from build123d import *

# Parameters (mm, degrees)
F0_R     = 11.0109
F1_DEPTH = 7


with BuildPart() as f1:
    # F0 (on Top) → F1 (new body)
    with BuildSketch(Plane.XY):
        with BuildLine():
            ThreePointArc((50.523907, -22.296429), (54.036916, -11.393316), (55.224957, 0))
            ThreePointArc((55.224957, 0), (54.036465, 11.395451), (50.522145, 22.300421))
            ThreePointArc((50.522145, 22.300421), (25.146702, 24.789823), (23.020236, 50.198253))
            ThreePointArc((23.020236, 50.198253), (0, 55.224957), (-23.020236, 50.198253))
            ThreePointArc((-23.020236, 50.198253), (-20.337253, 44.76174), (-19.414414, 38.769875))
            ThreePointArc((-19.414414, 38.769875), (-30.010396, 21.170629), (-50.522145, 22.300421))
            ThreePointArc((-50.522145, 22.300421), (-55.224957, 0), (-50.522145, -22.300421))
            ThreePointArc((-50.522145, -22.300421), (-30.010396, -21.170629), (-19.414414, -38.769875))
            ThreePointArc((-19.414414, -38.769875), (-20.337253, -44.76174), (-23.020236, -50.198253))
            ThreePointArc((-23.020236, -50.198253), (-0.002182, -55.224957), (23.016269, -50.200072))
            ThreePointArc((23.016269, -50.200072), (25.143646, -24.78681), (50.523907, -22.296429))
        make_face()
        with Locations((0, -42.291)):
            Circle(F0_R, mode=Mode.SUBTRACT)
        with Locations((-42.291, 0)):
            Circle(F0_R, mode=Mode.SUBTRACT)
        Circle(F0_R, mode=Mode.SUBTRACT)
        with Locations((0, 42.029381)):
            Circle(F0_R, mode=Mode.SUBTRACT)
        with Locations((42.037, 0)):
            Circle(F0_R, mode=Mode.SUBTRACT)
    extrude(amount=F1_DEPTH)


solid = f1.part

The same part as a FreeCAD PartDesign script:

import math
import FreeCAD as App
import Part
import Sketcher
Q = App.Units.Quantity

doc = App.newDocument("Part")
body = doc.addObject("PartDesign::Body", "Body")

sketch1 = body.newObject("Sketcher::SketchObject", "Sketch")
sketch1.AttachmentSupport = (doc.getObject("XY_Plane"), [""])
sketch1.MapMode = "FlatFace"
sketch1.addGeometry(Part.ArcOfCircle(Part.Circle(App.Vector(0, 0, 0), App.Vector(0, 0, 1), 55), math.radians(-24), math.radians(0)), False)
sketch1.addGeometry(Part.ArcOfCircle(Part.Circle(App.Vector(0, 0, 0), App.Vector(0, 0, 1), 55), math.radians(0), math.radians(24)), False)
sketch1.addGeometry(Part.ArcOfCircle(Part.Circle(App.Vector(39, 39, 0), App.Vector(0, 0, 1), 20), math.radians(145), math.radians(304)), False)
sketch1.addGeometry(Part.ArcOfCircle(Part.Circle(App.Vector(0, 0, 0), App.Vector(0, 0, 1), 55), math.radians(65), math.radians(115)), False)
sketch1.addGeometry(Part.ArcOfCircle(Part.Circle(App.Vector(-39, 39, 0), App.Vector(0, 0, 1), 20), math.radians(0), math.radians(35)), False)
sketch1.addGeometry(Part.ArcOfCircle(Part.Circle(App.Vector(-39, 39, 0), App.Vector(0, 0, 1), 20), math.radians(-124), math.radians(0)), False)
sketch1.addGeometry(Part.ArcOfCircle(Part.Circle(App.Vector(0, 0, 0), App.Vector(0, 0, 1), 55), math.radians(156), math.radians(204)), False)
sketch1.addGeometry(Part.ArcOfCircle(Part.Circle(App.Vector(-39, -39, 0), App.Vector(0, 0, 1), 20), math.radians(0), math.radians(124)), False)
sketch1.addGeometry(Part.ArcOfCircle(Part.Circle(App.Vector(-39, -39, 0), App.Vector(0, 0, 1), 20), math.radians(-35), math.radians(0)), False)
sketch1.addGeometry(Part.ArcOfCircle(Part.Circle(App.Vector(0, 0, 0), App.Vector(0, 0, 1), 55), math.radians(-115), math.radians(-65)), False)
sketch1.addGeometry(Part.ArcOfCircle(Part.Circle(App.Vector(39, -39, 0), App.Vector(0, 0, 1), 20), math.radians(56), math.radians(215)), False)
sketch1.addGeometry(Part.Circle(App.Vector(0, -42, 0), App.Vector(0, 0, 1), 11), False)
sketch1.addGeometry(Part.Circle(App.Vector(-42, 0, 0), App.Vector(0, 0, 1), 11), False)
sketch1.addGeometry(Part.Circle(App.Vector(0, 0, 0), App.Vector(0, 0, 1), 11), False)
sketch1.addGeometry(Part.Circle(App.Vector(42, 0, 0), App.Vector(0, 0, 1), 11), False)
sketch1.addGeometry(Part.Circle(App.Vector(0, 42, 0), App.Vector(0, 0, 1), 11), False)
sketch1.addConstraint(Sketcher.Constraint("Tangent", 0, 2, 1, 1))
sketch1.addConstraint(Sketcher.Constraint("Coincident", 1, 2, 2, 2))
sketch1.addConstraint(Sketcher.Constraint("Coincident", 2, 1, 3, 1))
sketch1.addConstraint(Sketcher.Constraint("Coincident", 3, 2, 4, 2))
sketch1.addConstraint(Sketcher.Constraint("Tangent", 4, 1, 5, 2))
sketch1.addConstraint(Sketcher.Constraint("Coincident", 5, 1, 6, 1))
sketch1.addConstraint(Sketcher.Constraint("Coincident", 6, 2, 7, 2))
sketch1.addConstraint(Sketcher.Constraint("Tangent", 7, 1, 8, 2))
sketch1.addConstraint(Sketcher.Constraint("Coincident", 8, 1, 9, 1))
sketch1.addConstraint(Sketcher.Constraint("Coincident", 9, 2, 10, 2))
sketch1.addConstraint(Sketcher.Constraint("Coincident", 10, 1, 0, 1))
sketch1.addConstraint(Sketcher.Constraint("Coincident", 3, 3, -1, 1))
sketch1.addConstraint(Sketcher.Constraint("Coincident", 6, 3, -1, 1))
sketch1.addConstraint(Sketcher.Constraint("Coincident", 9, 3, -1, 1))
sketch1.addConstraint(Sketcher.Constraint("Coincident", 13, 3, -1, 1))
sketch1.addConstraint(Sketcher.Constraint("Equal", 2, 5))
sketch1.addConstraint(Sketcher.Constraint("Equal", 5, 7))
sketch1.addConstraint(Sketcher.Constraint("Equal", 4, 8))
sketch1.addConstraint(Sketcher.Constraint("Equal", 3, 9))
sketch1.addConstraint(Sketcher.Constraint("Equal", 11, 12))
sketch1.addConstraint(Sketcher.Constraint("Equal", 12, 13))
sketch1.addConstraint(Sketcher.Constraint("Equal", 13, 14))
sketch1.addConstraint(Sketcher.Constraint("Equal", 14, 15))
sketch1.addConstraint(Sketcher.Constraint("Symmetric", 0, 3, 1, 3, -1, 1))
sketch1.addConstraint(Sketcher.Constraint("Symmetric", 2, 3, 7, 3, -1, 1))
sketch1.addConstraint(Sketcher.Constraint("Symmetric", 4, 3, 10, 3, -1, 1))
sketch1.addConstraint(Sketcher.Constraint("Symmetric", 2, 3, 4, 3, -2))
sketch1.addConstraint(Sketcher.Constraint("Symmetric", 1, 2, 5, 1, -2))
sketch1.addConstraint(Sketcher.Constraint("PointOnObject", 11, 3, -2))
sketch1.addConstraint(Sketcher.Constraint("PointOnObject", 12, 3, -1))
sketch1.addConstraint(Sketcher.Constraint("PointOnObject", 14, 3, -1))
sketch1.addConstraint(Sketcher.Constraint("PointOnObject", 15, 3, -2))
sketch1.addConstraint(Sketcher.Constraint("PointOnObject", 0, 2, -1))
sketch1.addConstraint(Sketcher.Constraint("Horizontal", 5, 3, 4, 1))
sketch1.addConstraint(Sketcher.Constraint("Horizontal", 10, 3, 7, 1))
sketch1.addConstraint(Sketcher.Constraint("Diameter", 11, Q("0.867 in")))
sketch1.addConstraint(Sketcher.Constraint("Radius", 2, Q("0.784 in")))
sketch1.addConstraint(Sketcher.Constraint("DistanceY", 11, 3, -1, 1, Q("1.665 in")))
sketch1.addConstraint(Sketcher.Constraint("DistanceX", 12, 3, -1, 1, Q("1.665 in")))
sketch1.addConstraint(Sketcher.Constraint("DistanceX", -1, 1, 14, 3, Q("1.655 in")))
sketch1.addConstraint(Sketcher.Constraint("Radius", 0, Q("55.224941 mm")))
sketch1.addConstraint(Sketcher.Constraint("Radius", 6, Q("55.224961 mm")))
sketch1.addConstraint(Sketcher.Constraint("DistanceY", -1, 1, 15, 3, Q("1.6547 in")))
sketch1.addConstraint(Sketcher.Constraint("Radius", 3, Q("55.224956 mm")))
sketch1.addConstraint(Sketcher.Constraint("Radius", 10, Q("19.917893 mm")))
sketch1.addConstraint(Sketcher.Constraint("DistanceX", 0, 3, 2, 3, Q("39.327998 mm")))
sketch1.addConstraint(Sketcher.Constraint("DistanceY", -1, 1, 1, 2, Q("22.300421 mm")))
pad1 = body.newObject("PartDesign::Pad", "Pad")
pad1.Profile = sketch1
pad1.Length = 7

doc.recompute()
